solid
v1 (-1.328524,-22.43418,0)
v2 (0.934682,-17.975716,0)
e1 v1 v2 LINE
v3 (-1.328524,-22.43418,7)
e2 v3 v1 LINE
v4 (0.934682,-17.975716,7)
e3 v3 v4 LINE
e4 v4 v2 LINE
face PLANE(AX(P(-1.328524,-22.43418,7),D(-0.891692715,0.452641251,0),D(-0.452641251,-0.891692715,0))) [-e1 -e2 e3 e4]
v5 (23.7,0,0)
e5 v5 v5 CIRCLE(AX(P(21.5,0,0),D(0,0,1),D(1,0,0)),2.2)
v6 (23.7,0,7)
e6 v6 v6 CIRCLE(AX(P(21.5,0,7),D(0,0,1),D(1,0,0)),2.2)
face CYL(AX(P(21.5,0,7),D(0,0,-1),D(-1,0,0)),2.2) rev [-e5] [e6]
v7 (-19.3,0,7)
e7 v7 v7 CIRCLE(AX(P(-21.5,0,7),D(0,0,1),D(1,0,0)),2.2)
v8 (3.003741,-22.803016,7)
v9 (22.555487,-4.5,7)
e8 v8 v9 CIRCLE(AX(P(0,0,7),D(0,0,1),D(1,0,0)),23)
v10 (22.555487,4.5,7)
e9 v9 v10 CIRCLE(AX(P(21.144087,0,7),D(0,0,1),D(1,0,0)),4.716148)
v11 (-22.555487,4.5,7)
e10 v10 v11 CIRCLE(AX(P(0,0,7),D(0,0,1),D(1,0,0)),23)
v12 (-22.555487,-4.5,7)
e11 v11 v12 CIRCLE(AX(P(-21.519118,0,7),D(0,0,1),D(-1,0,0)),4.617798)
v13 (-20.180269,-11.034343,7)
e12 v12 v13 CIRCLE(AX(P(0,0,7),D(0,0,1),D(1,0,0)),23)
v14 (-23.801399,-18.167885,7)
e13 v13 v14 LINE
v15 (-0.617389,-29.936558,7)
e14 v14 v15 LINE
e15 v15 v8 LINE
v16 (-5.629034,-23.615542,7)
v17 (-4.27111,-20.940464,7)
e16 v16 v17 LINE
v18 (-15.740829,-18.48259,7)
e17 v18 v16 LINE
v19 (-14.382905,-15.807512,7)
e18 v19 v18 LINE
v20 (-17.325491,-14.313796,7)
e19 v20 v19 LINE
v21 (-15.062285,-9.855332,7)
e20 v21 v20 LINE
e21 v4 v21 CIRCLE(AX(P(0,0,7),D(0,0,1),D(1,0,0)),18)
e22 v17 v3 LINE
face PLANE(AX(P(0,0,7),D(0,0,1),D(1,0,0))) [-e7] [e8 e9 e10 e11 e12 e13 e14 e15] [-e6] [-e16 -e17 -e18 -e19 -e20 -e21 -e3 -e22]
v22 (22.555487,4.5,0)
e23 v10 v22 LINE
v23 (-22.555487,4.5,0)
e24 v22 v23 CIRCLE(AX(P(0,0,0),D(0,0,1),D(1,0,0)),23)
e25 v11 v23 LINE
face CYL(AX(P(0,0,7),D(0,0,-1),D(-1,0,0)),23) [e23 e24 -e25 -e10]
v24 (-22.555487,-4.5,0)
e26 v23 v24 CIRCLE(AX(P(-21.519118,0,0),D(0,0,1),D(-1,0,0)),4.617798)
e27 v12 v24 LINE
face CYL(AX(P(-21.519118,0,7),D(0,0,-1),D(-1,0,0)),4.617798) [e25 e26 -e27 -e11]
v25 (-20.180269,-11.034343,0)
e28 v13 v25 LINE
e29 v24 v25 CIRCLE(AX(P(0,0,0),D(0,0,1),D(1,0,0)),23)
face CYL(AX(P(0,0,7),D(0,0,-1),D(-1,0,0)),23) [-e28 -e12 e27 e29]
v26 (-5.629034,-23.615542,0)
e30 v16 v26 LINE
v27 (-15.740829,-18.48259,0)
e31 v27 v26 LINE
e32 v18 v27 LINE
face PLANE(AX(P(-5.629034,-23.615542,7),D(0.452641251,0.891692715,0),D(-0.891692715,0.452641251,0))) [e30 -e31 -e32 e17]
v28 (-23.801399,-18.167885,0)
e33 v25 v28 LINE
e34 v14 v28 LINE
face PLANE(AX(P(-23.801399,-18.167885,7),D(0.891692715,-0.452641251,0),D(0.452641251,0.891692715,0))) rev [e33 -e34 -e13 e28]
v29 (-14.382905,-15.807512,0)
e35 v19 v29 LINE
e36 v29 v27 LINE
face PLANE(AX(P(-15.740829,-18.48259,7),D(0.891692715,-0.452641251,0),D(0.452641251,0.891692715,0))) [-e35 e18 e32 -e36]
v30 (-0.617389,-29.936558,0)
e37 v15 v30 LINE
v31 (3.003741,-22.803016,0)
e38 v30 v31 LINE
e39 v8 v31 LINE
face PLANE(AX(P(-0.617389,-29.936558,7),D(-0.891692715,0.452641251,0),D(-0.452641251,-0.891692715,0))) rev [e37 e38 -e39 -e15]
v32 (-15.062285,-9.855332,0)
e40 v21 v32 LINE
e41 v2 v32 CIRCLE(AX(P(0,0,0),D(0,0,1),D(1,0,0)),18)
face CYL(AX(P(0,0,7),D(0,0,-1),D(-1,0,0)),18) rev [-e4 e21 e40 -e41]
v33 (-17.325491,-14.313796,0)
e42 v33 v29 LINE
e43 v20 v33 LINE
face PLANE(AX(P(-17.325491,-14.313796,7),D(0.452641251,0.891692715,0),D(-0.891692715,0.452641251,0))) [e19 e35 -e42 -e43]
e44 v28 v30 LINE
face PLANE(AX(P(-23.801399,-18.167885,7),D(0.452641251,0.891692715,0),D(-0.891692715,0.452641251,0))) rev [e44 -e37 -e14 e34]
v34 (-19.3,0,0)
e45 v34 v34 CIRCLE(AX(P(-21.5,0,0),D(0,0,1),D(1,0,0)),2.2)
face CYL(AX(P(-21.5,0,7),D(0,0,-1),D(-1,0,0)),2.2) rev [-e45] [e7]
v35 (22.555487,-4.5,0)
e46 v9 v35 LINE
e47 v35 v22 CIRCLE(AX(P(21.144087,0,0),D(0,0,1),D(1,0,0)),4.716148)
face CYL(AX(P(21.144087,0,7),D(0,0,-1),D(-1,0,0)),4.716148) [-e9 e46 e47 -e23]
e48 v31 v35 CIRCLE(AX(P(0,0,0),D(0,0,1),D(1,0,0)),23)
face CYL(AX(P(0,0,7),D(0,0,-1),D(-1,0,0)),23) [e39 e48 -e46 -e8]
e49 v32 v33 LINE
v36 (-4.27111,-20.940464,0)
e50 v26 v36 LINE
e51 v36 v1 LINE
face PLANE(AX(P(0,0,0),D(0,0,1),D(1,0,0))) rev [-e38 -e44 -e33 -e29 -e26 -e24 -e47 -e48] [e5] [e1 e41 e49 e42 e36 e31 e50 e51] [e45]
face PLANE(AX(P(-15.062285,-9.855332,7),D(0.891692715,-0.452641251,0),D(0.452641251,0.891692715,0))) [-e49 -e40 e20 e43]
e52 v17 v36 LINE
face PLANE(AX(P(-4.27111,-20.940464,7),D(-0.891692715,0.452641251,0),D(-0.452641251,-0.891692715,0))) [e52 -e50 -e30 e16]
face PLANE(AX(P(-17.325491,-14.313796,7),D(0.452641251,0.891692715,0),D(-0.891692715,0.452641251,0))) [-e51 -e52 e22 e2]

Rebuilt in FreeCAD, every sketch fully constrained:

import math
import FreeCAD as App
import Part
import Sketcher

doc = App.newDocument("Part")
params = doc.addObject("Spreadsheet::Sheet", "Params")
for row, (alias, value) in enumerate([
    ("sketch1_diameter", "46 mm"),
    ("sketch1_diameter2", "36 mm"),
    ("pad1_length", "7 mm"),
    ("sketch2_radius", "23 mm"),
    ("sketch2_length", "26 mm"),
    ("sketch2_length2", "8 mm"),
    ("pad2_length", "7 mm"),
    ("sketch3_radius", "18 mm"),
    ("sketch3_length", "5 mm"),
    ("sketch3_length2", "17.94 mm"),
    ("pocket1_length", "7 mm"),
    ("sketch4_radius", "23 mm"),
    ("pad3_length", "7 mm"),
    ("sketch5_diameter", "4.4 mm"),
    ("pocket2_length", "7 mm"),
    ("sketch6_length", "3 mm"),
    ("sketch6_length2", "11.34 mm"),
    ("pocket3_length", "7 mm"),
], start=1):
    params.set(f"A{row}", alias)
    params.set(f"B{row}", "=" + value)
    params.setAlias(f"B{row}", alias)

body = doc.addObject("PartDesign::Body", "Body")

# Sketch on XY plane
sketch1 = body.newObject("Sketcher::SketchObject", "Sketch")
sketch1.AttachmentSupport = (doc.getObject("XY_Plane"), [""])
sketch1.MapMode = "FlatFace"
sketch1.addGeometry(Part.Circle(App.Vector(0, 0, 0), App.Vector(0, 0, 1), 23), False)
sketch1.addGeometry(Part.Circle(App.Vector(0, 0, 0), App.Vector(0, 0, 1), 18), False)
sketch1.addConstraint(Sketcher.Constraint("Coincident", 0, 3, -1, 1))
sketch1.addConstraint(Sketcher.Constraint("Coincident", 1, 3, -1, 1))
sketch1.addConstraint(Sketcher.Constraint("Diameter", 0, 46.0))
sketch1.addConstraint(Sketcher.Constraint("Diameter", 1, 36.0))
sketch1.setExpression("Constraints[2]", "Params.sketch1_diameter")
sketch1.setExpression("Constraints[3]", "Params.sketch1_diameter2")
pad1 = body.newObject("PartDesign::Pad", "Pad")
pad1.Profile = sketch1
pad1.setExpression("Length", "Params.pad1_length")

# Sketch on XY plane
sketch2 = body.newObject("Sketcher::SketchObject", "Sketch001")
sketch2.AttachmentSupport = (doc.getObject("XY_Plane"), [""])
sketch2.MapMode = "FlatFace"
sketch2.addGeometry(Part.LineSegment(App.Vector(-24, -18, 0), App.Vector(-1, -30, 0)), False)
sketch2.addGeometry(Part.LineSegment(App.Vector(-1, -30, 0), App.Vector(3, -23, 0)), False)
sketch2.addGeometry(Part.ArcOfCircle(Part.Circle(App.Vector(0, 0, 0), App.Vector(0, 0, 1), 23), math.radians(-151), math.radians(-82)), False)
sketch2.addGeometry(Part.LineSegment(App.Vector(-20, -11, 0), App.Vector(-24, -18, 0)), False)
sketch2.addConstraint(Sketcher.Constraint("Coincident", 0, 2, 1, 1))
sketch2.addConstraint(Sketcher.Constraint("Coincident", 1, 2, 2, 2))
sketch2.addConstraint(Sketcher.Constraint("Coincident", 2, 1, 3, 1))
sketch2.addConstraint(Sketcher.Constraint("Coincident", 3, 2, 0, 1))
sketch2.addConstraint(Sketcher.Constraint("Coincident", 2, 3, -1, 1))
sketch2.addConstraint(Sketcher.Constraint("Perpendicular", 0, 1))
sketch2.addConstraint(Sketcher.Constraint("Parallel", 1, 3))
sketch2.addConstraint(Sketcher.Constraint("Equal", 1, 3))
sketch2.addConstraint(Sketcher.Constraint("Radius", 2, 23.0))
sketch2.addConstraint(Sketcher.Constraint("Distance", 0, 26.0))
sketch2.addConstraint(Sketcher.Constraint("Distance", 1, 8.0))
sketch2.addConstraint(Sketcher.Constraint("DistanceX", 3, 2, -1, 1, 23.801399))
sketch2.setExpression("Constraints[8]", "Params.sketch2_radius")
sketch2.setExpression("Constraints[9]", "Params.sketch2_length")
sketch2.setExpression("Constraints[10]", "Params.sketch2_length2")
pad2 = body.newObject("PartDesign::Pad", "Pad001")
pad2.Profile = sketch2
pad2.setExpression("Length", "Params.pad2_length")

# Sketch on XY plane
sketch3 = body.newObject("Sketcher::SketchObject", "Sketch002")
sketch3.AttachmentSupport = (doc.getObject("XY_Plane"), [""])
sketch3.MapMode = "FlatFace"
sketch3.addGeometry(Part.LineSegment(App.Vector(-15.1, -9.9, 0), App.Vector(-17.3, -14.3, 0)), False)
sketch3.addGeometry(Part.LineSegment(App.Vector(-17.3, -14.3, 0), App.Vector(-1.3, -22.4, 0)), False)
sketch3.addGeometry(Part.LineSegment(App.Vector(-1.3, -22.4, 0), App.Vector(0.9, -18, 0)), False)
sketch3.addGeometry(Part.ArcOfCircle(Part.Circle(App.Vector(0, 0, 0), App.Vector(0, 0, 1), 18), math.radians(-147), math.radians(-87)), False)
sketch3.addConstraint(Sketcher.Constraint("Coincident", 0, 2, 1, 1))
sketch3.addConstraint(Sketcher.Constraint("Coincident", 1, 2, 2, 1))
sketch3.addConstraint(Sketcher.Constraint("Coincident", 2, 2, 3, 2))
sketch3.addConstraint(Sketcher.Constraint("Coincident", 3, 1, 0, 1))
sketch3.addConstraint(Sketcher.Constraint("Coincident", 3, 3, -1, 1))
sketch3.addConstraint(Sketcher.Constraint("Perpendicular", 0, 1))
sketch3.addConstraint(Sketcher.Constraint("Perpendicular", 1, 2))
sketch3.addConstraint(Sketcher.Constraint("Equal", 0, 2))
sketch3.addConstraint(Sketcher.Constraint("Radius", 3, 18.0))
sketch3.addConstraint(Sketcher.Constraint("Distance", 0, 5.0))
sketch3.addConstraint(Sketcher.Constraint("Distance", 1, 17.94))
sketch3.addConstraint(Sketcher.Constraint("DistanceX", 0, 2, -1, 1, 17.325491))
sketch3.setExpression("Constraints[8]", "Params.sketch3_radius")
sketch3.setExpression("Constraints[9]", "Params.sketch3_length")
sketch3.setExpression("Constraints[10]", "Params.sketch3_length2")
pocket1 = body.newObject("PartDesign::Pocket", "Pocket")
pocket1.Profile = sketch3
pocket1.setExpression("Length", "Params.pocket1_length")
pocket1.Reversed = True

# Sketch on XY plane
sketch4 = body.newObject("Sketcher::SketchObject", "Sketch003")
sketch4.AttachmentSupport = (doc.getObject("XY_Plane"), [""])
sketch4.MapMode = "FlatFace"
sketch4.addGeometry(Part.ArcOfCircle(Part.Circle(App.Vector(-21.5, 0, 0), App.Vector(0, 0, 1), 4.6), math.radians(103), math.radians(257)), False)
sketch4.addGeometry(Part.ArcOfCircle(Part.Circle(App.Vector(0, 0, 0), App.Vector(0, 0, 1), 23), math.radians(169), math.radians(191)), False)
sketch4.addGeometry(Part.ArcOfCircle(Part.Circle(App.Vector(21.1, 0, 0), App.Vector(0, 0, 1), 4.7), math.radians(-73), math.radians(73)), False)
sketch4.addGeometry(Part.ArcOfCircle(Part.Circle(App.Vector(0, 0, 0), App.Vector(0, 0, 1), 23), math.radians(-11), math.radians(11)), False)
sketch4.addConstraint(Sketcher.Constraint("Coincident", 0, 1, 1, 1))
sketch4.addConstraint(Sketcher.Constraint("Coincident", 1, 2, 0, 2))
sketch4.addConstraint(Sketcher.Constraint("Coincident", 2, 1, 3, 1))
sketch4.addConstraint(Sketcher.Constraint("Coincident", 3, 2, 2, 2))
sketch4.addConstraint(Sketcher.Constraint("Coincident", 1, 3, -1, 1))
sketch4.addConstraint(Sketcher.Constraint("Coincident", 3, 3, -1, 1))
sketch4.addConstraint(Sketcher.Constraint("Equal", 1, 3))
sketch4.addConstraint(Sketcher.Constraint("PointOnObject", 0, 3, -1))
sketch4.addConstraint(Sketcher.Constraint("PointOnObject", 2, 3, -1))
sketch4.addConstraint(Sketcher.Constraint("Horizontal", 1, 2, 2, 1))
sketch4.addConstraint(Sketcher.Constraint("Radius", 1, 23.0))
sketch4.addConstraint(Sketcher.Constraint("DistanceY", 1, 2, 0, 1, 9.0))
sketch4.addConstraint(Sketcher.Constraint("Radius", 0, 4.617798))
sketch4.addConstraint(Sketcher.Constraint("Radius", 2, 4.716148))
sketch4.setExpression("Constraints[10]", "Params.sketch4_radius")
pad3 = body.newObject("PartDesign::Pad", "Pad002")
pad3.Profile = sketch4
pad3.setExpression("Length", "Params.pad3_length")

# Sketch on XY plane
sketch5 = body.newObject("Sketcher::SketchObject", "Sketch004")
sketch5.AttachmentSupport = (doc.getObject("XY_Plane"), [""])
sketch5.MapMode = "FlatFace"
sketch5.addGeometry(Part.Circle(App.Vector(-21.5, 0, 0), App.Vector(0, 0, 1), 2.2), False)
sketch5.addGeometry(Part.Circle(App.Vector(21.5, 0, 0), App.Vector(0, 0, 1), 2.2), False)
sketch5.addConstraint(Sketcher.Constraint("Equal", 0, 1))
sketch5.addConstraint(Sketcher.Constraint("Symmetric", 0, 3, 1, 3, -1, 1))
sketch5.addConstraint(Sketcher.Constraint("PointOnObject", 0, 3, -1))
sketch5.addConstraint(Sketcher.Constraint("Diameter", 0, 4.4))
sketch5.addConstraint(Sketcher.Constraint("DistanceX", 0, 3, 1, 3, 43.0))
sketch5.setExpression("Constraints[3]", "Params.sketch5_diameter")
pocket2 = body.newObject("PartDesign::Pocket", "Pocket001")
pocket2.Profile = sketch5
pocket2.setExpression("Length", "Params.pocket2_length")
pocket2.Reversed = True

# Sketch on XY plane
sketch6 = body.newObject("Sketcher::SketchObject", "Sketch005")
sketch6.AttachmentSupport = (doc.getObject("XY_Plane"), [""])
sketch6.MapMode = "FlatFace"
sketch6.addGeometry(Part.LineSegment(App.Vector(-4.3, -20.9, 0), App.Vector(-14.4, -15.8, 0)), False)
sketch6.addGeometry(Part.LineSegment(App.Vector(-14.4, -15.8, 0), App.Vector(-15.7, -18.5, 0)), False)
sketch6.addGeometry(Part.LineSegment(App.Vector(-15.7, -18.5, 0), App.Vector(-5.6, -23.6, 0)), False)
sketch6.addGeometry(Part.LineSegment(App.Vector(-5.6, -23.6, 0), App.Vector(-4.3, -20.9, 0)), False)
sketch6.addConstraint(Sketcher.Constraint("Coincident", 0, 2, 1, 1))
sketch6.addConstraint(Sketcher.Constraint("Coincident", 1, 2, 2, 1))
sketch6.addConstraint(Sketcher.Constraint("Coincident", 2, 2, 3, 1))
sketch6.addConstraint(Sketcher.Constraint("Coincident", 3, 2, 0, 1))
sketch6.addConstraint(Sketcher.Constraint("Perpendicular", 0, 1))
sketch6.addConstraint(Sketcher.Constraint("Perpendicular", 1, 2))
sketch6.addConstraint(Sketcher.Constraint("Perpendicular", 2, 3))
sketch6.addConstraint(Sketcher.Constraint("Distance", 1, 3.0))
sketch6.addConstraint(Sketcher.Constraint("Distance", 0, 11.34))
sketch6.addConstraint(Sketcher.Constraint("DistanceY", 0, 2, -1, 1, 15.807512))
sketch6.addConstraint(Sketcher.Constraint("DistanceX", 1, 2, -1, 1, 15.740829))
sketch6.addConstraint(Sketcher.Constraint("DistanceY", 1, 2, -1, 1, 18.48259))
sketch6.setExpression("Constraints[7]", "Params.sketch6_length")
sketch6.setExpression("Constraints[8]", "Params.sketch6_length2")
pocket3 = body.newObject("PartDesign::Pocket", "Pocket002")
pocket3.Profile = sketch6
pocket3.setExpression("Length", "Params.pocket3_length")
pocket3.Reversed = True

doc.recompute()
